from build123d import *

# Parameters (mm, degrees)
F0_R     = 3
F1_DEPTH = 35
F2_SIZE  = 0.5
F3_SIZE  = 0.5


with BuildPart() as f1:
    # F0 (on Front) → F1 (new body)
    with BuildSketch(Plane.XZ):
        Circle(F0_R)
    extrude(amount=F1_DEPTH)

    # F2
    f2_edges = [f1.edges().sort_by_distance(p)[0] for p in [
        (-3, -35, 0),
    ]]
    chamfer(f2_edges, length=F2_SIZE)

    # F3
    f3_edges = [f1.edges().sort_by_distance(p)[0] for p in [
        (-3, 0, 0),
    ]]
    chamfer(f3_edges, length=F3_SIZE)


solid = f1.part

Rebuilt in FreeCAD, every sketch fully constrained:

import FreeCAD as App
import Part
import Sketcher

V = App.Vector
Q = App.Units.Quantity


def edges_at(feature, points):
    """Names of the edges that pass closest to the given points."""
    edges = feature.Shape.Edges
    near = lambda p: min(range(len(edges)), key=lambda i: edges[i].distToShape(Part.Vertex(*p))[0])
    return sorted({f"Edge{near(p) + 1}" for p in points})

doc = App.newDocument("Part")
params = doc.addObject("Spreadsheet::Sheet", "Params")
for row, (alias, value) in enumerate([
    ("sketch1_diameter", "6 mm"),
    ("pad1_length", "35 mm"),
    ("chamfer_size", "0.5 mm"),
    ("chamfer2_size", "0.5 mm"),
], start=1):
    params.set(f"A{row}", alias)
    params.set(f"B{row}", "=" + value)
    params.setAlias(f"B{row}", alias)

body = doc.addObject("PartDesign::Body", "Body")

# Sketch on XZ plane
sketch1 = doc.addObject("Sketcher::SketchObject", "Sketch")
body.addObject(sketch1)
sketch1.AttachmentSupport = (doc.XZ_Plane, [""])
sketch1.MapMode = "FlatFace"
sketch1.addGeometry(Part.Circle(V(0, 0, 0), V(0, 0, 1), 3), False)
sketch1.addConstraint([
    Sketcher.Constraint("Coincident", 0, 3, -1, 1),
    Sketcher.Constraint("Diameter", 0, Q("6 mm")),
])
sketch1.setExpression("Constraints[1]", "Params.sketch1_diameter")
pad1 = doc.addObject("PartDesign::Pad", "Pad")
body.addObject(pad1)
pad1.Profile = sketch1
pad1.setExpression("Length", "Params.pad1_length")
doc.recompute()

chamfer = doc.addObject("PartDesign::Chamfer", "Chamfer")
body.addObject(chamfer)
chamfer.Base = (pad1, edges_at(pad1, [(-3, -35, 0)]))
chamfer.setExpression("Size", "Params.chamfer_size")
doc.recompute()

chamfer2 = doc.addObject("PartDesign::Chamfer", "Chamfer001")
body.addObject(chamfer2)
chamfer2.Base = (chamfer, edges_at(chamfer, [(-3, 0, 0)]))
chamfer2.setExpression("Size", "Params.chamfer2_size")

doc.recompute()
